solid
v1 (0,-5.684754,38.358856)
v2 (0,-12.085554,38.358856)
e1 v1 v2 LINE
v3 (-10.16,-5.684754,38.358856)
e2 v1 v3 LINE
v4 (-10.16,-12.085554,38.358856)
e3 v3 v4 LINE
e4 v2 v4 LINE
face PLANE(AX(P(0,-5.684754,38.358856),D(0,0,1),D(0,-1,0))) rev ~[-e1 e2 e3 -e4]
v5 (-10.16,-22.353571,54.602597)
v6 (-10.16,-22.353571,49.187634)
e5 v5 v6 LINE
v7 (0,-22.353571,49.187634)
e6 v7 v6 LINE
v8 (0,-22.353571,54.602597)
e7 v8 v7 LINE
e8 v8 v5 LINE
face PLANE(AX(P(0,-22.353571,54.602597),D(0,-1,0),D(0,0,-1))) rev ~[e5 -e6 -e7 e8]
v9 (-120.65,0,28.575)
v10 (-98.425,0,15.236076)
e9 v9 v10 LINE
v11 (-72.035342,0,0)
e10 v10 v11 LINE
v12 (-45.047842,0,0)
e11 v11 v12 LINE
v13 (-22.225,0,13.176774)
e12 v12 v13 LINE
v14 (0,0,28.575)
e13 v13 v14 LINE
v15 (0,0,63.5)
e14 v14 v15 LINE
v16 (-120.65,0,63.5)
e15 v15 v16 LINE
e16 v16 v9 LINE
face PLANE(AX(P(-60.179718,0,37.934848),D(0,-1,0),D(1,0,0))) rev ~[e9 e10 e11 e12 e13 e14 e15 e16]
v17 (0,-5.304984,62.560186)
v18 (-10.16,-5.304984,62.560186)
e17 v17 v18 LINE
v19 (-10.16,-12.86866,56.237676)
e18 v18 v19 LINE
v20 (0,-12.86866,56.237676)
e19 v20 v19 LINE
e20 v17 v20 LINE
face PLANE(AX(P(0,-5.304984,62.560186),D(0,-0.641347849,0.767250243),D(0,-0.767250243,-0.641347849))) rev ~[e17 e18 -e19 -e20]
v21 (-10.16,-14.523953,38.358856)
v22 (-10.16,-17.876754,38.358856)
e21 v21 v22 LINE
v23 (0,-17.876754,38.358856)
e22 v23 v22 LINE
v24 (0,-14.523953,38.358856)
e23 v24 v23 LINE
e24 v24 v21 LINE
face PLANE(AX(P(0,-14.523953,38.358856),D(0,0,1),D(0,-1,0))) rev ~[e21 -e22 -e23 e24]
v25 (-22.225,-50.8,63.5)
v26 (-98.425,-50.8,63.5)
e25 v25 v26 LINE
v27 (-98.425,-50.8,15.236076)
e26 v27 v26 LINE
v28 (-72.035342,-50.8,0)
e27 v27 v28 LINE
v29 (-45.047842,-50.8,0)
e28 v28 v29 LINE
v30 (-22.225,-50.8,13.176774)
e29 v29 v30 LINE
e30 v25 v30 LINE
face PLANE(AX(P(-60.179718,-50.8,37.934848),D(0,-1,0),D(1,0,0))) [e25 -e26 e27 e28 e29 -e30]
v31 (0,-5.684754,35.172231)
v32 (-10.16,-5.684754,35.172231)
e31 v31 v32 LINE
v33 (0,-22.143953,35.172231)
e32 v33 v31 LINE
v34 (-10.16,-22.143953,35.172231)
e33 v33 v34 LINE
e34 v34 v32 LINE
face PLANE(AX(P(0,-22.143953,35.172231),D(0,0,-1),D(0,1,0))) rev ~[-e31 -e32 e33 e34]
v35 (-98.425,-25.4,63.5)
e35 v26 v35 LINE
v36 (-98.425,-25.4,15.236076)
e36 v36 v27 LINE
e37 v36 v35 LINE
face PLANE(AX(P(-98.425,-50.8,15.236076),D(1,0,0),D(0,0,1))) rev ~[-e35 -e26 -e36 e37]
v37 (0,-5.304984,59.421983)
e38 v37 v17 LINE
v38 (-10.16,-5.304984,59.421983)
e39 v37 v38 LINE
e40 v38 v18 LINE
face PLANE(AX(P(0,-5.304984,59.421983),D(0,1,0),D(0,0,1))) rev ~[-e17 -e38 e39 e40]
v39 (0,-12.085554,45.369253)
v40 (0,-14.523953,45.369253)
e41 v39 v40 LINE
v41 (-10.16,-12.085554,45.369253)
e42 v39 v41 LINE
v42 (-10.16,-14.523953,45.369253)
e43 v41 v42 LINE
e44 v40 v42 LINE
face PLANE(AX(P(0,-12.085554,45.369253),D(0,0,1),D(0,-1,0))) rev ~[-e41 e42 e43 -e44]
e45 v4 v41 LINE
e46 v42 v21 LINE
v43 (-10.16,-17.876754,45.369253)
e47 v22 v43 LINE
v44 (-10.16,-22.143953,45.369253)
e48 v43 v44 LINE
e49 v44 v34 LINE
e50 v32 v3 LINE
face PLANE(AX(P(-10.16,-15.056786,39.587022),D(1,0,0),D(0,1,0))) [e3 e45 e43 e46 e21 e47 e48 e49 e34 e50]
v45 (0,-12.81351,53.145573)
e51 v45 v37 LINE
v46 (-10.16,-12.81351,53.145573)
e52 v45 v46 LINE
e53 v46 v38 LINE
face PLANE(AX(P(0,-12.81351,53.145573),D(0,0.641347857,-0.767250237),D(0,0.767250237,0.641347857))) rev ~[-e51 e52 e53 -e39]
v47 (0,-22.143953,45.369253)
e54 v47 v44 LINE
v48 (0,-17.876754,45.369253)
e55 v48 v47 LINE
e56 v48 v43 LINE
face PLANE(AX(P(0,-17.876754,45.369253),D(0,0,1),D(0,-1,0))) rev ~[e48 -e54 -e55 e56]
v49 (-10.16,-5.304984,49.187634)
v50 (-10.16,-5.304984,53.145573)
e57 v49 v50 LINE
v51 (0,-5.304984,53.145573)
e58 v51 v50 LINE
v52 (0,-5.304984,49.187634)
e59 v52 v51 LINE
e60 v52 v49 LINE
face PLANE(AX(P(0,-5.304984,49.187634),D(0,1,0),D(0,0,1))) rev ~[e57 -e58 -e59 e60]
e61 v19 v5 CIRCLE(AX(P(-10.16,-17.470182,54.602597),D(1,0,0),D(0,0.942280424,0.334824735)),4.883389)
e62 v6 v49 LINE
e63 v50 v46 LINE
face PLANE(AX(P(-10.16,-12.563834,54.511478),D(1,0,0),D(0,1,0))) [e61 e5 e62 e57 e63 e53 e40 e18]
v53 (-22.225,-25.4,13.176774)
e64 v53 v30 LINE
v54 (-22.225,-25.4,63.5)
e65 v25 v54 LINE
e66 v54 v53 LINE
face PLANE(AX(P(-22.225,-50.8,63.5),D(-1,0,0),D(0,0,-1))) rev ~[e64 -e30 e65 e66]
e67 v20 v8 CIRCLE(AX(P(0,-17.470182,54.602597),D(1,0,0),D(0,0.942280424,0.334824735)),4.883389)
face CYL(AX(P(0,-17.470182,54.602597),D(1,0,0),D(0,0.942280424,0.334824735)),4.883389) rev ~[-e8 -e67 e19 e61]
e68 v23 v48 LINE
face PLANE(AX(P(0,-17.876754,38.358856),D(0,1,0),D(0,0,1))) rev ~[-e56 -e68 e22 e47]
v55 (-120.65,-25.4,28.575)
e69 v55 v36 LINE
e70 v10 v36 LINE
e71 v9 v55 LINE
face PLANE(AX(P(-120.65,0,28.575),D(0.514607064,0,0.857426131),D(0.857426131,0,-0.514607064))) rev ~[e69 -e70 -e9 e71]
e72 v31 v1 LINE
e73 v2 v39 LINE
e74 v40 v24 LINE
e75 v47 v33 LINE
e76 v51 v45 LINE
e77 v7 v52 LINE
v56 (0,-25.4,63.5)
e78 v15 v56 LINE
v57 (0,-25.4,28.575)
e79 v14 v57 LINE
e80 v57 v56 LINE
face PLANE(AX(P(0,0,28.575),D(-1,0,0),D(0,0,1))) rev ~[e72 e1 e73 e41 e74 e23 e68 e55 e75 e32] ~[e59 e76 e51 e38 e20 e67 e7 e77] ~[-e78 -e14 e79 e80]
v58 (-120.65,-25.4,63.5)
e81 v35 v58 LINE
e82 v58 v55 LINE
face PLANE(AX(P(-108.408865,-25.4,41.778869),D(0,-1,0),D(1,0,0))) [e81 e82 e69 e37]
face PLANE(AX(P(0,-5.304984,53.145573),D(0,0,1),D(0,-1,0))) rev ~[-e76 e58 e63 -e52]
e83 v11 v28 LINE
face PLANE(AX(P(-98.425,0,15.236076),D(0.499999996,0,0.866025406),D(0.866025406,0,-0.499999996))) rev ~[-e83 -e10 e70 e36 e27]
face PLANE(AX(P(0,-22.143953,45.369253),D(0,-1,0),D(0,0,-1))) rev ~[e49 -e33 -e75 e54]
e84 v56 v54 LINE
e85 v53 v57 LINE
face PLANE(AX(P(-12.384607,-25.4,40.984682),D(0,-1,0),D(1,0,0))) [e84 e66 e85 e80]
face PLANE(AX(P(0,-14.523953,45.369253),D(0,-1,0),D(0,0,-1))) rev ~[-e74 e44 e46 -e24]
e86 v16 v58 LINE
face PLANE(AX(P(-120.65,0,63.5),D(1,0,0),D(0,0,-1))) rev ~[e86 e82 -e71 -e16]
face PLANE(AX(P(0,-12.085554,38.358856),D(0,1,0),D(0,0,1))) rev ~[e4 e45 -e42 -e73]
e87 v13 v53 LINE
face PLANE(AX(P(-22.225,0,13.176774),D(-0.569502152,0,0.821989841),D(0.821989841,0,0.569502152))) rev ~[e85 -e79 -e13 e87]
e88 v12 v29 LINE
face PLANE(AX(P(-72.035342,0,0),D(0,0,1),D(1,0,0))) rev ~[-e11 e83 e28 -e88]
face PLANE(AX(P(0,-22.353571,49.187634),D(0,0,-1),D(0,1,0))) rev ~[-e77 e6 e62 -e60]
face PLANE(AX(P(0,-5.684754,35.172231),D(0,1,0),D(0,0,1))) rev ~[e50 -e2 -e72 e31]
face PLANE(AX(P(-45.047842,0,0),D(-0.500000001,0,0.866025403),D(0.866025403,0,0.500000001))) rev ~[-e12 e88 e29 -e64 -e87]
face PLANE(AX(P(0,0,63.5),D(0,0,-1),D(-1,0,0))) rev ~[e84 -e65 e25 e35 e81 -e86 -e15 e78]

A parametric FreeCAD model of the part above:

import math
import FreeCAD as App
import Part
import Sketcher
from FreeCAD import Vector
Q = App.Units.Quantity

doc = App.newDocument("Part")
body = doc.addObject("PartDesign::Body", "Body")

# Sketch on XZ plane
sketch1 = body.newObject("Sketcher::SketchObject", "Sketch")
sketch1.AttachmentSupport = (doc.getObject("XZ_Plane"), [""])
sketch1.MapMode = "FlatFace"
sketch1.addGeometry(Part.LineSegment(Vector(-72.035342, 0, 0), Vector(-45.047842, 0, 0)), False)
sketch1.addGeometry(Part.LineSegment(Vector(-45.047842, 0, 0), Vector(-22.225, 13.176774, 0)), False)
sketch1.addGeometry(Part.LineSegment(Vector(-22.225, 13.176774, 0), Vector(0, 28.575, 0)), False)
sketch1.addGeometry(Part.LineSegment(Vector(0, 28.575, 0), Vector(0, 63.5, 0)), False)
sketch1.addGeometry(Part.LineSegment(Vector(0, 63.5, 0), Vector(-120.65, 63.5, 0)), False)
sketch1.addGeometry(Part.LineSegment(Vector(-120.65, 63.5, 0), Vector(-120.65, 28.575, 0)), False)
sketch1.addGeometry(Part.LineSegment(Vector(-120.65, 28.575, 0), Vector(-98.425, 15.236076, 0)), False)
sketch1.addGeometry(Part.LineSegment(Vector(-98.425, 15.236076, 0), Vector(-72.035342, 0, 0)), False)
sketch1.addConstraint(Sketcher.Constraint("Coincident", 0, 2, 1, 1))
sketch1.addConstraint(Sketcher.Constraint("Coincident", 1, 2, 2, 1))
sketch1.addConstraint(Sketcher.Constraint("Coincident", 2, 2, 3, 1))
sketch1.addConstraint(Sketcher.Constraint("Coincident", 3, 2, 4, 1))
sketch1.addConstraint(Sketcher.Constraint("Coincident", 4, 2, 5, 1))
sketch1.addConstraint(Sketcher.Constraint("Coincident", 5, 2, 6, 1))
sketch1.addConstraint(Sketcher.Constraint("Coincident", 6, 2, 7, 1))
sketch1.addConstraint(Sketcher.Constraint("Coincident", 7, 2, 0, 1))
sketch1.addConstraint(Sketcher.Constraint("Horizontal", 0))
sketch1.addConstraint(Sketcher.Constraint("Vertical", 3))
sketch1.addConstraint(Sketcher.Constraint("Horizontal", 4))
sketch1.addConstraint(Sketcher.Constraint("Vertical", 5))
sketch1.addConstraint(Sketcher.Constraint("PointOnObject", 0, 2, -1))
sketch1.addConstraint(Sketcher.Constraint("PointOnObject", 2, 2, -2))
sketch1.addConstraint(Sketcher.Constraint("Horizontal", 2, 2, 5, 2))
sketch1.addConstraint(Sketcher.Constraint("Angle", 1, Q("30 deg")))
sketch1.addConstraint(Sketcher.Constraint("Angle", 7, Q("-30 deg")))
sketch1.addConstraint(Sketcher.Constraint("DistanceX", 6, 2, 1, 2, Q("3 in")))
sketch1.addConstraint(Sketcher.Constraint("DistanceX", 4, 2, 4, 1, Q("4.75 in")))
sketch1.addConstraint(Sketcher.Constraint("DistanceY", -1, 1, 3, 2, Q("2.5 in")))
sketch1.addConstraint(Sketcher.Constraint("DistanceX", 0, 1, 0, 2, Q("1.0625 in")))
sketch1.addConstraint(Sketcher.Constraint("DistanceY", 3, 1, 3, 2, Q("1.375 in")))
sketch1.addConstraint(Sketcher.Constraint("DistanceX", 1, 2, -1, 1, Q("0.875 in")))
sketch1.addConstraint(Sketcher.Constraint("Distance", 6, Q("25.9206 mm")))
pad1 = body.newObject("PartDesign::Pad", "Pad")
pad1.Profile = sketch1
pad1.Length = Q("2 in")

# Sketch on XZ plane
sketch2 = body.newObject("Sketcher::SketchObject", "Sketch001")
sketch2.AttachmentSupport = (doc.getObject("XZ_Plane"), [""])
sketch2.MapMode = "FlatFace"
sketch2.AttachmentOffset = App.Placement(Vector(0, 0, 2 * 25.4), App.Rotation())
sketch2.addGeometry(Part.LineSegment(Vector(-22.225, 63.5, 0), Vector(-22.225, 13.176774, 0)), False)
sketch2.addGeometry(Part.LineSegment(Vector(-22.225, 13.176774, 0), Vector(0, 28.575, 0)), False)
sketch2.addGeometry(Part.LineSegment(Vector(0, 28.575, 0), Vector(0, 63.5, 0)), False)
sketch2.addGeometry(Part.LineSegment(Vector(0, 63.5, 0), Vector(-22.225, 63.5, 0)), False)
sketch2.addGeometry(Part.LineSegment(Vector(-98.425, 15.236076, 0), Vector(-98.425, 63.5, 0)), False)
sketch2.addGeometry(Part.LineSegment(Vector(-98.425, 63.5, 0), Vector(-120.65, 63.5, 0)), False)
sketch2.addGeometry(Part.LineSegment(Vector(-120.65, 63.5, 0), Vector(-120.65, 28.575, 0)), False)
sketch2.addGeometry(Part.LineSegment(Vector(-120.65, 28.575, 0), Vector(-98.425, 15.236076, 0)), False)
sketch2.addConstraint(Sketcher.Constraint("Coincident", 0, 2, 1, 1))
sketch2.addConstraint(Sketcher.Constraint("Coincident", 1, 2, 2, 1))
sketch2.addConstraint(Sketcher.Constraint("Coincident", 2, 2, 3, 1))
sketch2.addConstraint(Sketcher.Constraint("Coincident", 3, 2, 0, 1))
sketch2.addConstraint(Sketcher.Constraint("Coincident", 4, 2, 5, 1))
sketch2.addConstraint(Sketcher.Constraint("Coincident", 5, 2, 6, 1))
sketch2.addConstraint(Sketcher.Constraint("Coincident", 6, 2, 7, 1))
sketch2.addConstraint(Sketcher.Constraint("Coincident", 7, 2, 4, 1))
sketch2.addConstraint(Sketcher.Constraint("Vertical", 0))
sketch2.addConstraint(Sketcher.Constraint("Vertical", 2))
sketch2.addConstraint(Sketcher.Constraint("Horizontal", 3))
sketch2.addConstraint(Sketcher.Constraint("Vertical", 4))
sketch2.addConstraint(Sketcher.Constraint("Horizontal", 5))
sketch2.addConstraint(Sketcher.Constraint("Vertical", 6))
sketch2.addConstraint(Sketcher.Constraint("PointOnObject", 1, 2, -2))
sketch2.addConstraint(Sketcher.Constraint("Horizontal", 3, 2, 4, 2))
sketch2.addConstraint(Sketcher.Constraint("Horizontal", 1, 2, 6, 2))
sketch2.addConstraint(Sketcher.Constraint("Equal", 3, 5))
sketch2.addConstraint(Sketcher.Constraint("DistanceX", 4, 2, 3, 2, Q("3 in")))
sketch2.addConstraint(Sketcher.Constraint("DistanceY", -1, 1, 2, 2, Q("2.5 in")))
sketch2.addConstraint(Sketcher.Constraint("DistanceX", 3, 2, 3, 1, Q("0.875 in")))
sketch2.addConstraint(Sketcher.Constraint("DistanceY", 2, 1, 2, 2, Q("1.375 in")))
sketch2.addConstraint(Sketcher.Constraint("Distance", 7, Q("25.9206 mm")))
sketch2.addConstraint(Sketcher.Constraint("DistanceY", 0, 2, 0, 1, Q("50.323226 mm")))
pocket1 = body.newObject("PartDesign::Pocket", "Pocket")
pocket1.Profile = sketch2
pocket1.Length = Q("1 in")

# Sketch on YZ plane
sketch3 = body.newObject("Sketcher::SketchObject", "Sketch002")
sketch3.AttachmentSupport = (doc.getObject("YZ_Plane"), [""])
sketch3.MapMode = "FlatFace"
sketch3.addGeometry(Part.LineSegment(Vector(-22.143953, 35.172231, 0), Vector(-5.684754, 35.172231, 0)), False)
sketch3.addGeometry(Part.LineSegment(Vector(-5.684754, 35.172231, 0), Vector(-5.684754, 38.358856, 0)), False)
sketch3.addGeometry(Part.LineSegment(Vector(-5.684754, 38.358856, 0), Vector(-12.085554, 38.358856, 0)), False)
sketch3.addGeometry(Part.LineSegment(Vector(-12.085554, 38.358856, 0), Vector(-12.085554, 45.369253, 0)), False)
sketch3.addGeometry(Part.LineSegment(Vector(-12.085554, 45.369253, 0), Vector(-14.523953, 45.369253, 0)), False)
sketch3.addGeometry(Part.LineSegment(Vector(-14.523953, 45.369253, 0), Vector(-14.523953, 38.358856, 0)), False)
sketch3.addGeometry(Part.LineSegment(Vector(-14.523953, 38.358856, 0), Vector(-17.876754, 38.358856, 0)), False)
sketch3.addGeometry(Part.LineSegment(Vector(-17.876754, 38.358856, 0), Vector(-17.876754, 45.369253, 0)), False)
sketch3.addGeometry(Part.LineSegment(Vector(-17.876754, 45.369253, 0), Vector(-22.143953, 45.369253, 0)), False)
sketch3.addGeometry(Part.LineSegment(Vector(-22.143953, 45.369253, 0), Vector(-22.143953, 35.172231, 0)), False)
sketch3.addGeometry(Part.LineSegment(Vector(-22.353571, 54.602597, 0), Vector(-22.353571, 49.187634, 0)), False)
sketch3.addGeometry(Part.LineSegment(Vector(-22.353571, 49.187634, 0), Vector(-5.304984, 49.187634, 0)), False)
sketch3.addGeometry(Part.LineSegment(Vector(-5.304984, 49.187634, 0), Vector(-5.304984, 53.145573, 0)), False)
sketch3.addGeometry(Part.LineSegment(Vector(-5.304984, 53.145573, 0), Vector(-12.81351, 53.145573, 0)), False)
sketch3.addGeometry(Part.LineSegment(Vector(-12.81351, 53.145573, 0), Vector(-5.304984, 59.421983, 0)), False)
sketch3.addGeometry(Part.LineSegment(Vector(-5.304984, 59.421983, 0), Vector(-5.304984, 62.560186, 0)), False)
sketch3.addGeometry(Part.LineSegment(Vector(-5.304984, 62.560186, 0), Vector(-12.86866, 56.237676, 0)), False)
sketch3.addGeometry(Part.ArcOfCircle(Part.Circle(Vector(-17.470182, 54.602597, 0), Vector(0, 0, 1), 4.883389), math.radians(19.561881), math.radians(179.999995)), False)
sketch3.addConstraint(Sketcher.Constraint("Coincident", 0, 2, 1, 1))
sketch3.addConstraint(Sketcher.Constraint("Coincident", 1, 2, 2, 1))
sketch3.addConstraint(Sketcher.Constraint("Coincident", 2, 2, 3, 1))
sketch3.addConstraint(Sketcher.Constraint("Coincident", 3, 2, 4, 1))
sketch3.addConstraint(Sketcher.Constraint("Coincident", 4, 2, 5, 1))
sketch3.addConstraint(Sketcher.Constraint("Coincident", 5, 2, 6, 1))
sketch3.addConstraint(Sketcher.Constraint("Coincident", 6, 2, 7, 1))
sketch3.addConstraint(Sketcher.Constraint("Coincident", 7, 2, 8, 1))
sketch3.addConstraint(Sketcher.Constraint("Coincident", 8, 2, 9, 1))
sketch3.addConstraint(Sketcher.Constraint("Coincident", 9, 2, 0, 1))
sketch3.addConstraint(Sketcher.Constraint("Coincident", 10, 2, 11, 1))
sketch3.addConstraint(Sketcher.Constraint("Coincident", 11, 2, 12, 1))
sketch3.addConstraint(Sketcher.Constraint("Coincident", 12, 2, 13, 1))
sketch3.addConstraint(Sketcher.Constraint("Coincident", 13, 2, 14, 1))
sketch3.addConstraint(Sketcher.Constraint("Coincident", 14, 2, 15, 1))
sketch3.addConstraint(Sketcher.Constraint("Coincident", 15, 2, 16, 1))
sketch3.addConstraint(Sketcher.Constraint("Coincident", 16, 2, 17, 1))
sketch3.addConstraint(Sketcher.Constraint("Tangent", 17, 2, 10, 1))
sketch3.addConstraint(Sketcher.Constraint("Horizontal", 0))
sketch3.addConstraint(Sketcher.Constraint("Vertical", 1))
sketch3.addConstraint(Sketcher.Constraint("Horizontal", 2))
sketch3.addConstraint(Sketcher.Constraint("Vertical", 3))
sketch3.addConstraint(Sketcher.Constraint("Horizontal", 4))
sketch3.addConstraint(Sketcher.Constraint("Vertical", 5))
sketch3.addConstraint(Sketcher.Constraint("Horizontal", 6))
sketch3.addConstraint(Sketcher.Constraint("Vertical", 7))
sketch3.addConstraint(Sketcher.Constraint("Horizontal", 8))
sketch3.addConstraint(Sketcher.Constraint("Vertical", 9))
sketch3.addConstraint(Sketcher.Constraint("Vertical", 10))
sketch3.addConstraint(Sketcher.Constraint("Horizontal", 11))
sketch3.addConstraint(Sketcher.Constraint("Vertical", 12))
sketch3.addConstraint(Sketcher.Constraint("Horizontal", 13))
sketch3.addConstraint(Sketcher.Constraint("Vertical", 15))
sketch3.addConstraint(Sketcher.Constraint("Parallel", 14, 16))
sketch3.addConstraint(Sketcher.Constraint("Horizontal", 2, 2, 5, 2))
sketch3.addConstraint(Sketcher.Constraint("Horizontal", 4, 2, 7, 2))
sketch3.addConstraint(Sketcher.Constraint("Vertical", 12, 2, 14, 2))
sketch3.addConstraint(Sketcher.Constraint("DistanceX", 8, 2, 4, 2, Q("0.3 in")))
sketch3.addConstraint(Sketcher.Constraint("DistanceX", 0, 1, 0, 2, Q("0.648 in")))
sketch3.addConstraint(Sketcher.Constraint("DistanceX", 2, 2, 2, 1, Q("0.252 in")))
sketch3.addConstraint(Sketcher.Constraint("DistanceX", 6, 2, 6, 1, Q("0.132 in")))
sketch3.addConstraint(Sketcher.Constraint("DistanceY", 3, 1, 3, 2, Q("0.2759999 in")))
sketch3.addConstraint(Sketcher.Constraint("Radius", 17, Q("4.883389 mm")))
sketch3.addConstraint(Sketcher.Constraint("DistanceY", 12, 1, 12, 2, Q("3.957939 mm")))
sketch3.addConstraint(Sketcher.Constraint("Distance", 14, Q("9.78628 mm")))
sketch3.addConstraint(Sketcher.Constraint("Distance", 16, Q("9.85816 mm")))
sketch3.addConstraint(Sketcher.Constraint("DistanceX", 11, 1, 11, 2, Q("17.048587 mm")))
sketch3.addConstraint(Sketcher.Constraint("DistanceX", 13, 2, 13, 1, Q("7.508526 mm")))
sketch3.addConstraint(Sketcher.Constraint("DistanceY", 1, 1, 1, 2, Q("3.186625 mm")))
sketch3.addConstraint(Sketcher.Constraint("DistanceY", 10, 2, 10, 1, Q("5.414963 mm")))
sketch3.addConstraint(Sketcher.Constraint("DistanceX", 17, 3, -1, 1, Q("17.470182 mm")))
sketch3.addConstraint(Sketcher.Constraint("DistanceY", -1, 1, 0, 2, Q("35.172231 mm")))
sketch3.addConstraint(Sketcher.Constraint("DistanceY", 1, 2, 17, 3, Q("16.243741 mm")))
sketch3.addConstraint(Sketcher.Constraint("DistanceX", 17, 3, 4, 2, Q("2.946229 mm")))
pocket2 = body.newObject("PartDesign::Pocket", "Pocket001")
pocket2.Profile = sketch3
pocket2.Length = Q("0.4 in")

doc.recompute()
